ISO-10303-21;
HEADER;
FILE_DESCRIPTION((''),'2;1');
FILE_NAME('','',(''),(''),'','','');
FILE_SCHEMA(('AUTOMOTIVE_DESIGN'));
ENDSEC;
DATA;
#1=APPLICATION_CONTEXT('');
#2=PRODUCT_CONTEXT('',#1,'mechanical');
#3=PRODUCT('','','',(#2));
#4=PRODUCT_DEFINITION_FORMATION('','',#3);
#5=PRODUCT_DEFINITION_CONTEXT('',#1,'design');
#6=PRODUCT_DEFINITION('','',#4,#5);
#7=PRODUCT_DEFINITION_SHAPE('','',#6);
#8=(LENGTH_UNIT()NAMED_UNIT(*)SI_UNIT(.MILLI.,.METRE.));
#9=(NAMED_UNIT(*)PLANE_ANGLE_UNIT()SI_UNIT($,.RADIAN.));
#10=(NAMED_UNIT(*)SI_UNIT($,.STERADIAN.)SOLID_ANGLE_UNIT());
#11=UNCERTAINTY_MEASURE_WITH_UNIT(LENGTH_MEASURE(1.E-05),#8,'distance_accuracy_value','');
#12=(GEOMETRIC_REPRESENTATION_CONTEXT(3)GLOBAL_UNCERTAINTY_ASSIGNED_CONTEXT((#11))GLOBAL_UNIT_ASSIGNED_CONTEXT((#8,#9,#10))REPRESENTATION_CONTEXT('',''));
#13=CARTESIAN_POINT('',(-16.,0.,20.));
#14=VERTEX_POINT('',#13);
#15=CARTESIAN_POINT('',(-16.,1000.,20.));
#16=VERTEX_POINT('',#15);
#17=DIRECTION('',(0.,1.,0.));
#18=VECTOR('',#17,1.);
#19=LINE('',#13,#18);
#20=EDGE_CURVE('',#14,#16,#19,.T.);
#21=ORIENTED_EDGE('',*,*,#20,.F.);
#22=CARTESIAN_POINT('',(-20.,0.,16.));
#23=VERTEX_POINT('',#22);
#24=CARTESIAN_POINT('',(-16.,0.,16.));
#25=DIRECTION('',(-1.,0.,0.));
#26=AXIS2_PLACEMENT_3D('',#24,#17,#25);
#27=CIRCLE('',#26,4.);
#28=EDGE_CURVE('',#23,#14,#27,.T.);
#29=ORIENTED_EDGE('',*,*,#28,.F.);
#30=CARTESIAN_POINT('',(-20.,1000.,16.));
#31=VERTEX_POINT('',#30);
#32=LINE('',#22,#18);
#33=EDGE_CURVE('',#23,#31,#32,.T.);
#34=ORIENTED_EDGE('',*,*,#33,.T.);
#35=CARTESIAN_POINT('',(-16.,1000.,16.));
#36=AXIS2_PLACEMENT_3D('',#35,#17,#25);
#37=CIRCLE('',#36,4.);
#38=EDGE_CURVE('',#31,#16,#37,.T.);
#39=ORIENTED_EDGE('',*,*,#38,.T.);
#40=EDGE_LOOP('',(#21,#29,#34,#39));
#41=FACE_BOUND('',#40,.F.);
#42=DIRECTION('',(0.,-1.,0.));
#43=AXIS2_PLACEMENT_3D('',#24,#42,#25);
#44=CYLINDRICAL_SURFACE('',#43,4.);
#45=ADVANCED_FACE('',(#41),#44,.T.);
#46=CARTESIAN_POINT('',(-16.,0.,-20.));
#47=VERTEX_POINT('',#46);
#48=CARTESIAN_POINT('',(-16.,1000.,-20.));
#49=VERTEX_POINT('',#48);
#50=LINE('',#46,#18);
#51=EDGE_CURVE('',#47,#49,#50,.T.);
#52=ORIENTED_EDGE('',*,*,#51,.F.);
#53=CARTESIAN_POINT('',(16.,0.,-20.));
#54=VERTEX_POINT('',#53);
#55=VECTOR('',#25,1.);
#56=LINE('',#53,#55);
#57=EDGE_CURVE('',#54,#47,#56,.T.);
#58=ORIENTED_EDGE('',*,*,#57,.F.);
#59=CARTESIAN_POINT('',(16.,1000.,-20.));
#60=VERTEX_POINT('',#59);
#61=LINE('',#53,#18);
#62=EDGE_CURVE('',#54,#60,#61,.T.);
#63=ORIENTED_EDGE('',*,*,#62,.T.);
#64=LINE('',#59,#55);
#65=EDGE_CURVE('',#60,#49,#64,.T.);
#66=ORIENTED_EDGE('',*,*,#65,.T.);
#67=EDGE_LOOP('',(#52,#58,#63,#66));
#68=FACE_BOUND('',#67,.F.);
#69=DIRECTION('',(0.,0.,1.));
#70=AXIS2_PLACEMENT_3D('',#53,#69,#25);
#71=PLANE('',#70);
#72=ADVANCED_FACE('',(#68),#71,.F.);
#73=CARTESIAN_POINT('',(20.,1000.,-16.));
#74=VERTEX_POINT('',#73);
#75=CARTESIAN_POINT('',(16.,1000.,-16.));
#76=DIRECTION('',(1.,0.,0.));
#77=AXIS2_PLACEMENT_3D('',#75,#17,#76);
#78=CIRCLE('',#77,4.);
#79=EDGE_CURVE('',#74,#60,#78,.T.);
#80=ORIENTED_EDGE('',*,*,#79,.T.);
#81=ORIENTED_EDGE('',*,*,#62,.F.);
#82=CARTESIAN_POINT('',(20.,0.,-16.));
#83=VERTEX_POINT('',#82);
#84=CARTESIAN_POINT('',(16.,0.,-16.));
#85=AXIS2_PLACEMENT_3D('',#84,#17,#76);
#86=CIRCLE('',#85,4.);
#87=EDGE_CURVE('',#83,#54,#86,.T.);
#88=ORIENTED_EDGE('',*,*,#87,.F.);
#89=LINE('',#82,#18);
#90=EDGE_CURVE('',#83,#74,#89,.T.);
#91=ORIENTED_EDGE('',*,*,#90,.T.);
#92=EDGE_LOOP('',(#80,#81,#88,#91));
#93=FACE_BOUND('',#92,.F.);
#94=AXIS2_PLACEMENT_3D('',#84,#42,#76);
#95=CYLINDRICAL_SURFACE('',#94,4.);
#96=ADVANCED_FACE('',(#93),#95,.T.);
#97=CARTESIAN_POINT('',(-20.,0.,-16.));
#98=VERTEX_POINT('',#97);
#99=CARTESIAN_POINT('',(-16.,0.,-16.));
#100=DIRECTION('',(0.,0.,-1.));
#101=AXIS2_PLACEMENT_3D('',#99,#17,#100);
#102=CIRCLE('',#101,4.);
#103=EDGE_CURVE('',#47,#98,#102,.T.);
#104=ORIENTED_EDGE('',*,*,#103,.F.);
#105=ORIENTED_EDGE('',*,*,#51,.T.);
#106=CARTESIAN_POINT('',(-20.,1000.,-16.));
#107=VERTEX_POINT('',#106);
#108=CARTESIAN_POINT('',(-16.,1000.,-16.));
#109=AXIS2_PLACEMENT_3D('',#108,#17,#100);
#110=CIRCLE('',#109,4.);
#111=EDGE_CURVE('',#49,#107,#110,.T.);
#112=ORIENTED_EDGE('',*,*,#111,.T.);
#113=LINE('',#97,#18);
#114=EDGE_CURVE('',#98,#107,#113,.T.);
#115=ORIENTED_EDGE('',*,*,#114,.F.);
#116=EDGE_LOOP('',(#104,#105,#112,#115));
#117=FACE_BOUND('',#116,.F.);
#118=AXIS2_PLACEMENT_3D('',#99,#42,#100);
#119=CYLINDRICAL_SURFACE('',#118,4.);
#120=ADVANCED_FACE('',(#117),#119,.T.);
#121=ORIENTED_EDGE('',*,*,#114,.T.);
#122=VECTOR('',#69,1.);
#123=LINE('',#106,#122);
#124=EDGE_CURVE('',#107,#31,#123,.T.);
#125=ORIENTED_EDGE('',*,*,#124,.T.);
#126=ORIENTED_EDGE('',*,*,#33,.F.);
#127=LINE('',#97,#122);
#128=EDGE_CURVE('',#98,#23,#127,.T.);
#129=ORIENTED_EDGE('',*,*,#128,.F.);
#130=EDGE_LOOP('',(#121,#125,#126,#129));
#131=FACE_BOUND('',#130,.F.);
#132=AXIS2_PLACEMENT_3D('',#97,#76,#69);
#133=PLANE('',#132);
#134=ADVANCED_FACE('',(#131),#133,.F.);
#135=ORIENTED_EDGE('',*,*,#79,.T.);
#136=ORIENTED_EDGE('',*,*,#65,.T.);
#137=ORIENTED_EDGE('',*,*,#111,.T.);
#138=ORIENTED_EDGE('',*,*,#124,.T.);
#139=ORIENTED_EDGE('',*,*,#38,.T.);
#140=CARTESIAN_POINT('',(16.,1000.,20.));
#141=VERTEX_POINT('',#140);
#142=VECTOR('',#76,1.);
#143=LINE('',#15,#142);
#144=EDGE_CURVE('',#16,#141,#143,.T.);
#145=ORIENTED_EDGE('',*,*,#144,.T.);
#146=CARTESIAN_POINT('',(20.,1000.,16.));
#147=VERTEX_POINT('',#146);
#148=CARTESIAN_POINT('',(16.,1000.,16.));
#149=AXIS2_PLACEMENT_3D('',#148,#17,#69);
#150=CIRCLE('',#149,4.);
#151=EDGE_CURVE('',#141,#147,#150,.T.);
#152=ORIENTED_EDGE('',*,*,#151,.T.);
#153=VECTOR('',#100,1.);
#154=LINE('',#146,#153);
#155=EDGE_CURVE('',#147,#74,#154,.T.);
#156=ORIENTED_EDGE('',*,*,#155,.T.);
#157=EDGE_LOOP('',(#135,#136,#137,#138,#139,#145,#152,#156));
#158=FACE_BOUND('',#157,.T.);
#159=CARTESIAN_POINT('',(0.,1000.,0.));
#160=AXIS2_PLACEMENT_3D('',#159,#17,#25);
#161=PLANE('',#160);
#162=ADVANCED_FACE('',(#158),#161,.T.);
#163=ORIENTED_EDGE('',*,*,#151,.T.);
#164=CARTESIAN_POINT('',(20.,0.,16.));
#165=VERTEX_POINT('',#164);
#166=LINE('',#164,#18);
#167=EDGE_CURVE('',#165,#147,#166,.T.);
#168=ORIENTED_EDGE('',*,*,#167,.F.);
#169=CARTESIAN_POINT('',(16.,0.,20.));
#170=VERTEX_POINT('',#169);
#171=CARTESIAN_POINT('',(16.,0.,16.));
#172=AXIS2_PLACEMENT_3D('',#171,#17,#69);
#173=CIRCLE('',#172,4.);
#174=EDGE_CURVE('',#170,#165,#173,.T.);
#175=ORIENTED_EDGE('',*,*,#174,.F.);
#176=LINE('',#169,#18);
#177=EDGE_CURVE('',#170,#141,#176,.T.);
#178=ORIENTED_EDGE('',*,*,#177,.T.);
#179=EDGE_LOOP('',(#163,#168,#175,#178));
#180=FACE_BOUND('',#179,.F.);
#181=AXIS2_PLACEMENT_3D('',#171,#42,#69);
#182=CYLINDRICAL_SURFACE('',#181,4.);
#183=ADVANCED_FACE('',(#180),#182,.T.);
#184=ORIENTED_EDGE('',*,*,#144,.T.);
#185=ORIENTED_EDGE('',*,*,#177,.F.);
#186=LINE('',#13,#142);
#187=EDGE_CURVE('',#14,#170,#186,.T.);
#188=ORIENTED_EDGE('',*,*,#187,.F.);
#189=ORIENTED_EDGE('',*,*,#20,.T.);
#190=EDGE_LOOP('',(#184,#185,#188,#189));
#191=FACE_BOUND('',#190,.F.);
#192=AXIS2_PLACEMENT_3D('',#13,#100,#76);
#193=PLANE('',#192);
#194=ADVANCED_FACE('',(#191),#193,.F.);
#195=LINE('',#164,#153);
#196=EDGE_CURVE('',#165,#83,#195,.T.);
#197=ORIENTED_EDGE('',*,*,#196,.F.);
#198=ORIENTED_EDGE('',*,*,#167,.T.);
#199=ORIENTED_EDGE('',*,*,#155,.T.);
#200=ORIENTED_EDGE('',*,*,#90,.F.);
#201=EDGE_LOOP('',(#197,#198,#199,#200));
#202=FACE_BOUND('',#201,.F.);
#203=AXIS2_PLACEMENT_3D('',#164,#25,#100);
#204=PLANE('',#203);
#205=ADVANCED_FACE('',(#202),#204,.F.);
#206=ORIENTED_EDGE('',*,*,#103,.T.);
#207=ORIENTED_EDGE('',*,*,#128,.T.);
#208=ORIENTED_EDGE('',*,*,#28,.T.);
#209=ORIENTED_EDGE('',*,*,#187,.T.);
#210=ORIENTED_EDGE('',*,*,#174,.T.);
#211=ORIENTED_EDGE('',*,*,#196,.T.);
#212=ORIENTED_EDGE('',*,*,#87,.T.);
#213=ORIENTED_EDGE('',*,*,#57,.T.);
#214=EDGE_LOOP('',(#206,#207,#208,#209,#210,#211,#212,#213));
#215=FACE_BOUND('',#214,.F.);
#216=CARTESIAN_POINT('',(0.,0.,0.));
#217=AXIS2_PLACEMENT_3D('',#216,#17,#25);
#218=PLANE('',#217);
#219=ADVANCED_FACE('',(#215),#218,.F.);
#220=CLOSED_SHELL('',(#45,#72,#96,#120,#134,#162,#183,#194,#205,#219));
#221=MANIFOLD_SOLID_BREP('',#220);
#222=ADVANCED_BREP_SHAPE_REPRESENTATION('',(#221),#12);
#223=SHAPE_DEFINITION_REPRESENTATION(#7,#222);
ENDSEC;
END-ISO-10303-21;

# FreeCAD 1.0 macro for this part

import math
import FreeCAD as App
import Part
import Sketcher
from FreeCAD import Vector

doc = App.newDocument("Part")
body = doc.addObject("PartDesign::Body", "Body")

sketch1 = body.newObject("Sketcher::SketchObject", "Sketch")
sketch1.AttachmentSupport = (doc.getObject("XZ_Plane"), [""])
sketch1.MapMode = "FlatFace"
sketch1.addGeometry([
    Part.ArcOfCircle(Part.Circle(Vector(-16, 16, 0), Vector(0, 0, 1), 4), math.radians(90), math.radians(180)),
    Part.LineSegment(Vector(-16, 20, 0), Vector(16, 20, 0)),
    Part.ArcOfCircle(Part.Circle(Vector(16, 16, 0), Vector(0, 0, 1), 4), math.radians(0), math.radians(90)),
    Part.LineSegment(Vector(20, 16, 0), Vector(20, -16, 0)),
    Part.ArcOfCircle(Part.Circle(Vector(16, -16, 0), Vector(0, 0, 1), 4), math.radians(-90), math.radians(0)),
    Part.LineSegment(Vector(16, -20, 0), Vector(-16, -20, 0)),
    Part.ArcOfCircle(Part.Circle(Vector(-16, -16, 0), Vector(0, 0, 1), 4), math.radians(180), math.radians(270)),
    Part.LineSegment(Vector(-20, -16, 0), Vector(-20, 16, 0)),
], False)
sketch1.addConstraint([
    Sketcher.Constraint("Tangent", 0, 1, 1, 1),
    Sketcher.Constraint("Tangent", 1, 2, 2, 2),
    Sketcher.Constraint("Tangent", 2, 1, 3, 1),
    Sketcher.Constraint("Tangent", 3, 2, 4, 2),
    Sketcher.Constraint("Tangent", 4, 1, 5, 1),
    Sketcher.Constraint("Tangent", 5, 2, 6, 2),
    Sketcher.Constraint("Tangent", 6, 1, 7, 1),
    Sketcher.Constraint("Tangent", 7, 2, 0, 2),
    Sketcher.Constraint("Horizontal", 1),
    Sketcher.Constraint("Vertical", 3),
    Sketcher.Constraint("Horizontal", 5),
    Sketcher.Constraint("Vertical", 7),
    Sketcher.Constraint("Equal", 0, 2),
    Sketcher.Constraint("Equal", 2, 4),
    Sketcher.Constraint("Equal", 4, 6),
    Sketcher.Constraint("Symmetric", 0, 3, 4, 3, -1, 1),
    Sketcher.Constraint("Equal", 5, 3),
    Sketcher.Constraint("Radius", 0, 4.0),
    Sketcher.Constraint("DistanceX", 1, 1, 1, 2, 32.0),
])
pad1 = body.newObject("PartDesign::Pad", "Pad")
pad1.Profile = sketch1
pad1.Length = 1000
pad1.Reversed = True

doc.recompute()
